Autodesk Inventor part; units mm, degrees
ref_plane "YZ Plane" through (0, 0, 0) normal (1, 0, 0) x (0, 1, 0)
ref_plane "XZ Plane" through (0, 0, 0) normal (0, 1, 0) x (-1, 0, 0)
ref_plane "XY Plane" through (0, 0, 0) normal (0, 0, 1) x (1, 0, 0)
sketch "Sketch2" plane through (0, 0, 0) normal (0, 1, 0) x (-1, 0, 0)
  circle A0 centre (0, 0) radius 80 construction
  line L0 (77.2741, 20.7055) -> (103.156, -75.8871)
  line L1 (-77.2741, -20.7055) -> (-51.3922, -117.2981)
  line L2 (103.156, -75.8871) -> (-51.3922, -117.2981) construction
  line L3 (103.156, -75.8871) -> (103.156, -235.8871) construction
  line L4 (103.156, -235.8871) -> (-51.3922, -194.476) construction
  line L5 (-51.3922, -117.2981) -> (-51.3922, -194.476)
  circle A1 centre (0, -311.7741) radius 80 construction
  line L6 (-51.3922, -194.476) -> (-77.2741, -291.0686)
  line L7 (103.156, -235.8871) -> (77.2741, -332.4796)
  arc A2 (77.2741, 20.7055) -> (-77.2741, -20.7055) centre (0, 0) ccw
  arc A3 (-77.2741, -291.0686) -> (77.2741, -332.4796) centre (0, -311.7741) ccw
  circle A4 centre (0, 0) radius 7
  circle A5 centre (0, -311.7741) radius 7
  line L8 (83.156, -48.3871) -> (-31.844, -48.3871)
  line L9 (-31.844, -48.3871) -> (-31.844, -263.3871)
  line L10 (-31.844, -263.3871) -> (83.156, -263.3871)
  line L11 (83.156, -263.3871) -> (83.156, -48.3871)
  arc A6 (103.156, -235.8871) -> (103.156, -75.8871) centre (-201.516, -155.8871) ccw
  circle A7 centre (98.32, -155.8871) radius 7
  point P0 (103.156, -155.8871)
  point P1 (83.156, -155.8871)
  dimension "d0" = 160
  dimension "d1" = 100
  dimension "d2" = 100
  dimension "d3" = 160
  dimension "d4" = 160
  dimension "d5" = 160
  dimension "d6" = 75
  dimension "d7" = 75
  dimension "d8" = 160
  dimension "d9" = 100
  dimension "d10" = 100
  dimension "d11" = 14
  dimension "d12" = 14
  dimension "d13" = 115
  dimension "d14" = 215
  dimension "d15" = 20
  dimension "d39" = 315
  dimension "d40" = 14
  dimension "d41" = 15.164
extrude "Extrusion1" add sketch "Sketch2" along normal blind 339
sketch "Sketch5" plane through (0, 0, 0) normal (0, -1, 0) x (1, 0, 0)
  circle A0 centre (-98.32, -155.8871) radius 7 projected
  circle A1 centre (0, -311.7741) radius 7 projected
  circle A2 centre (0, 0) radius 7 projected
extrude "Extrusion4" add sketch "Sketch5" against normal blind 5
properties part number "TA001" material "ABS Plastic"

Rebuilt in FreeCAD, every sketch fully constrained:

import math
import FreeCAD as App
import Part
import Sketcher
Q = App.Units.Quantity

doc = App.newDocument("Part")
params = doc.addObject("Spreadsheet::Sheet", "Params")
for row, (alias, value) in enumerate([
    ("sketch1_diameter", "14 mm"),
    ("sketch1_radius", "80 mm"),
    ("sketch1_radius2", "315 mm"),
    ("sketch1_width", "115 mm"),
    ("sketch1_height", "215 mm"),
    ("pad1_length", "339 mm"),
    ("sketch2_diameter", "14 mm"),
    ("pad2_length", "5 mm"),
], start=1):
    params.set(f"A{row}", alias)
    params.set(f"B{row}", "=" + value)
    params.setAlias(f"B{row}", alias)

body = doc.addObject("PartDesign::Body", "Body")

# Sketch on XZ plane
sketch1 = body.newObject("Sketcher::SketchObject", "Sketch")
sketch1.AttachmentSupport = (doc.getObject("XZ_Plane"), [""])
sketch1.MapMode = "FlatFace"
sketch1.addGeometry([
    Part.LineSegment(App.Vector(-103, -76, 0), App.Vector(-77, 21, 0)),  # 0
    Part.ArcOfCircle(Part.Circle(App.Vector(0, 0, 0), App.Vector(0, 0, 1), 80), math.radians(-15), math.radians(165)),  # 1
    Part.LineSegment(App.Vector(77, -21, 0), App.Vector(51, -117, 0)),  # 2
    Part.LineSegment(App.Vector(51, -117, 0), App.Vector(51, -194, 0)),  # 3
    Part.LineSegment(App.Vector(51, -194, 0), App.Vector(77, -291, 0)),  # 4
    Part.ArcOfCircle(Part.Circle(App.Vector(0, -312, 0), App.Vector(0, 0, 1), 80), math.radians(-165), math.radians(15)),  # 5
    Part.LineSegment(App.Vector(-77, -332, 0), App.Vector(-103, -236, 0)),  # 6
    Part.ArcOfCircle(Part.Circle(App.Vector(202, -156, 0), App.Vector(0, 0, 1), 315), math.radians(165), math.radians(195)),  # 7
    Part.Circle(App.Vector(0, -312, 0), App.Vector(0, 0, 1), 7),  # 8
    Part.LineSegment(App.Vector(32, -48, 0), App.Vector(-83, -48, 0)),  # 9
    Part.LineSegment(App.Vector(-83, -48, 0), App.Vector(-83, -263, 0)),  # 10
    Part.LineSegment(App.Vector(-83, -263, 0), App.Vector(32, -263, 0)),  # 11
    Part.LineSegment(App.Vector(32, -263, 0), App.Vector(32, -48, 0)),  # 12
    Part.Circle(App.Vector(-98, -156, 0), App.Vector(0, 0, 1), 7),  # 13
    Part.Circle(App.Vector(0, 0, 0), App.Vector(0, 0, 1), 7),  # 14
], False)
sketch1.addConstraint([
    Sketcher.Constraint("Tangent", 0, 2, 1, 2),
    Sketcher.Constraint("Tangent", 1, 1, 2, 1),
    Sketcher.Constraint("Coincident", 2, 2, 3, 1),
    Sketcher.Constraint("Coincident", 3, 2, 4, 1),
    Sketcher.Constraint("Tangent", 4, 2, 5, 2),
    Sketcher.Constraint("Tangent", 5, 1, 6, 1),
    Sketcher.Constraint("Coincident", 6, 2, 7, 2),
    Sketcher.Constraint("Coincident", 7, 1, 0, 1),
    Sketcher.Constraint("Coincident", 9, 2, 10, 1),
    Sketcher.Constraint("Coincident", 10, 2, 11, 1),
    Sketcher.Constraint("Coincident", 11, 2, 12, 1),
    Sketcher.Constraint("Coincident", 12, 2, 9, 1),
    Sketcher.Constraint("Vertical", 3),
    Sketcher.Constraint("Horizontal", 9),
    Sketcher.Constraint("Vertical", 10),
    Sketcher.Constraint("Horizontal", 11),
    Sketcher.Constraint("Vertical", 12),
    Sketcher.Constraint("Coincident", 1, 3, -1, 1),
    Sketcher.Constraint("Coincident", 14, 3, -1, 1),
    Sketcher.Constraint("Coincident", 8, 3, 5, 3),
    Sketcher.Constraint("Equal", 1, 5),
    Sketcher.Constraint("Equal", 8, 13),
    Sketcher.Constraint("Equal", 13, 14),
    Sketcher.Constraint("PointOnObject", 5, 3, -2),
    Sketcher.Constraint("Parallel", 0, 2),
    Sketcher.Constraint("Parallel", 4, 6),
    Sketcher.Constraint("Horizontal", 7, 3, 13, 3),
    Sketcher.Constraint("Vertical", 1, 1, 4, 2),
    Sketcher.Constraint("Vertical", 6, 2, 7, 1),
    Sketcher.Constraint("Equal", 0, 2),
    Sketcher.Constraint("Diameter", 8, 14.0),
    Sketcher.Constraint("Radius", 1, 80.0),
    Sketcher.Constraint("Radius", 7, 315.0),
    Sketcher.Constraint("DistanceX", 9, 2, 9, 1, 115.0),
    Sketcher.Constraint("DistanceY", 10, 2, 10, 1, 215.0),
    Sketcher.Constraint("Angle", 0, Q("75 deg")),
    Sketcher.Constraint("Distance", 0, 100.0),
    Sketcher.Constraint("DistanceX", 7, 1, 9, 2, 20.0),
    Sketcher.Constraint("DistanceY", 6, 2, 13, 3, 80.0),
    Sketcher.Constraint("DistanceX", 13, 3, 9, 2, 15.164),
    Sketcher.Constraint("DistanceY", 13, 3, 9, 2, 107.5),
])
sketch1.setExpression("Constraints[30]", "Params.sketch1_diameter")
sketch1.setExpression("Constraints[31]", "Params.sketch1_radius")
sketch1.setExpression("Constraints[32]", "Params.sketch1_radius2")
sketch1.setExpression("Constraints[33]", "Params.sketch1_width")
sketch1.setExpression("Constraints[34]", "Params.sketch1_height")
pad1 = body.newObject("PartDesign::Pad", "Pad")
pad1.Profile = sketch1
pad1.setExpression("Length", "Params.pad1_length")
pad1.Reversed = True

# Sketch on XZ plane
sketch2 = body.newObject("Sketcher::SketchObject", "Sketch001")
sketch2.AttachmentSupport = (doc.getObject("XZ_Plane"), [""])
sketch2.MapMode = "FlatFace"
sketch2.addGeometry([
    Part.Circle(App.Vector(-98, -156, 0), App.Vector(0, 0, 1), 7),
    Part.Circle(App.Vector(0, -312, 0), App.Vector(0, 0, 1), 7),
    Part.Circle(App.Vector(0, 0, 0), App.Vector(0, 0, 1), 7),
], False)
sketch2.addConstraint([
    Sketcher.Constraint("Coincident", 2, 3, -1, 1),
    Sketcher.Constraint("Equal", 0, 1),
    Sketcher.Constraint("Equal", 1, 2),
    Sketcher.Constraint("PointOnObject", 1, 3, -2),
    Sketcher.Constraint("Diameter", 0, 14.0),
    Sketcher.Constraint("DistanceX", 0, 3, -1, 1, 98.32),
    Sketcher.Constraint("DistanceY", 0, 3, -1, 1, 155.887),
    Sketcher.Constraint("DistanceY", 1, 3, -1, 1, 311.774),
])
sketch2.setExpression("Constraints[4]", "Params.sketch2_diameter")
pad2 = body.newObject("PartDesign::Pad", "Pad001")
pad2.Profile = sketch2
pad2.setExpression("Length", "Params.pad2_length")
pad2.Reversed = True

doc.recompute()
